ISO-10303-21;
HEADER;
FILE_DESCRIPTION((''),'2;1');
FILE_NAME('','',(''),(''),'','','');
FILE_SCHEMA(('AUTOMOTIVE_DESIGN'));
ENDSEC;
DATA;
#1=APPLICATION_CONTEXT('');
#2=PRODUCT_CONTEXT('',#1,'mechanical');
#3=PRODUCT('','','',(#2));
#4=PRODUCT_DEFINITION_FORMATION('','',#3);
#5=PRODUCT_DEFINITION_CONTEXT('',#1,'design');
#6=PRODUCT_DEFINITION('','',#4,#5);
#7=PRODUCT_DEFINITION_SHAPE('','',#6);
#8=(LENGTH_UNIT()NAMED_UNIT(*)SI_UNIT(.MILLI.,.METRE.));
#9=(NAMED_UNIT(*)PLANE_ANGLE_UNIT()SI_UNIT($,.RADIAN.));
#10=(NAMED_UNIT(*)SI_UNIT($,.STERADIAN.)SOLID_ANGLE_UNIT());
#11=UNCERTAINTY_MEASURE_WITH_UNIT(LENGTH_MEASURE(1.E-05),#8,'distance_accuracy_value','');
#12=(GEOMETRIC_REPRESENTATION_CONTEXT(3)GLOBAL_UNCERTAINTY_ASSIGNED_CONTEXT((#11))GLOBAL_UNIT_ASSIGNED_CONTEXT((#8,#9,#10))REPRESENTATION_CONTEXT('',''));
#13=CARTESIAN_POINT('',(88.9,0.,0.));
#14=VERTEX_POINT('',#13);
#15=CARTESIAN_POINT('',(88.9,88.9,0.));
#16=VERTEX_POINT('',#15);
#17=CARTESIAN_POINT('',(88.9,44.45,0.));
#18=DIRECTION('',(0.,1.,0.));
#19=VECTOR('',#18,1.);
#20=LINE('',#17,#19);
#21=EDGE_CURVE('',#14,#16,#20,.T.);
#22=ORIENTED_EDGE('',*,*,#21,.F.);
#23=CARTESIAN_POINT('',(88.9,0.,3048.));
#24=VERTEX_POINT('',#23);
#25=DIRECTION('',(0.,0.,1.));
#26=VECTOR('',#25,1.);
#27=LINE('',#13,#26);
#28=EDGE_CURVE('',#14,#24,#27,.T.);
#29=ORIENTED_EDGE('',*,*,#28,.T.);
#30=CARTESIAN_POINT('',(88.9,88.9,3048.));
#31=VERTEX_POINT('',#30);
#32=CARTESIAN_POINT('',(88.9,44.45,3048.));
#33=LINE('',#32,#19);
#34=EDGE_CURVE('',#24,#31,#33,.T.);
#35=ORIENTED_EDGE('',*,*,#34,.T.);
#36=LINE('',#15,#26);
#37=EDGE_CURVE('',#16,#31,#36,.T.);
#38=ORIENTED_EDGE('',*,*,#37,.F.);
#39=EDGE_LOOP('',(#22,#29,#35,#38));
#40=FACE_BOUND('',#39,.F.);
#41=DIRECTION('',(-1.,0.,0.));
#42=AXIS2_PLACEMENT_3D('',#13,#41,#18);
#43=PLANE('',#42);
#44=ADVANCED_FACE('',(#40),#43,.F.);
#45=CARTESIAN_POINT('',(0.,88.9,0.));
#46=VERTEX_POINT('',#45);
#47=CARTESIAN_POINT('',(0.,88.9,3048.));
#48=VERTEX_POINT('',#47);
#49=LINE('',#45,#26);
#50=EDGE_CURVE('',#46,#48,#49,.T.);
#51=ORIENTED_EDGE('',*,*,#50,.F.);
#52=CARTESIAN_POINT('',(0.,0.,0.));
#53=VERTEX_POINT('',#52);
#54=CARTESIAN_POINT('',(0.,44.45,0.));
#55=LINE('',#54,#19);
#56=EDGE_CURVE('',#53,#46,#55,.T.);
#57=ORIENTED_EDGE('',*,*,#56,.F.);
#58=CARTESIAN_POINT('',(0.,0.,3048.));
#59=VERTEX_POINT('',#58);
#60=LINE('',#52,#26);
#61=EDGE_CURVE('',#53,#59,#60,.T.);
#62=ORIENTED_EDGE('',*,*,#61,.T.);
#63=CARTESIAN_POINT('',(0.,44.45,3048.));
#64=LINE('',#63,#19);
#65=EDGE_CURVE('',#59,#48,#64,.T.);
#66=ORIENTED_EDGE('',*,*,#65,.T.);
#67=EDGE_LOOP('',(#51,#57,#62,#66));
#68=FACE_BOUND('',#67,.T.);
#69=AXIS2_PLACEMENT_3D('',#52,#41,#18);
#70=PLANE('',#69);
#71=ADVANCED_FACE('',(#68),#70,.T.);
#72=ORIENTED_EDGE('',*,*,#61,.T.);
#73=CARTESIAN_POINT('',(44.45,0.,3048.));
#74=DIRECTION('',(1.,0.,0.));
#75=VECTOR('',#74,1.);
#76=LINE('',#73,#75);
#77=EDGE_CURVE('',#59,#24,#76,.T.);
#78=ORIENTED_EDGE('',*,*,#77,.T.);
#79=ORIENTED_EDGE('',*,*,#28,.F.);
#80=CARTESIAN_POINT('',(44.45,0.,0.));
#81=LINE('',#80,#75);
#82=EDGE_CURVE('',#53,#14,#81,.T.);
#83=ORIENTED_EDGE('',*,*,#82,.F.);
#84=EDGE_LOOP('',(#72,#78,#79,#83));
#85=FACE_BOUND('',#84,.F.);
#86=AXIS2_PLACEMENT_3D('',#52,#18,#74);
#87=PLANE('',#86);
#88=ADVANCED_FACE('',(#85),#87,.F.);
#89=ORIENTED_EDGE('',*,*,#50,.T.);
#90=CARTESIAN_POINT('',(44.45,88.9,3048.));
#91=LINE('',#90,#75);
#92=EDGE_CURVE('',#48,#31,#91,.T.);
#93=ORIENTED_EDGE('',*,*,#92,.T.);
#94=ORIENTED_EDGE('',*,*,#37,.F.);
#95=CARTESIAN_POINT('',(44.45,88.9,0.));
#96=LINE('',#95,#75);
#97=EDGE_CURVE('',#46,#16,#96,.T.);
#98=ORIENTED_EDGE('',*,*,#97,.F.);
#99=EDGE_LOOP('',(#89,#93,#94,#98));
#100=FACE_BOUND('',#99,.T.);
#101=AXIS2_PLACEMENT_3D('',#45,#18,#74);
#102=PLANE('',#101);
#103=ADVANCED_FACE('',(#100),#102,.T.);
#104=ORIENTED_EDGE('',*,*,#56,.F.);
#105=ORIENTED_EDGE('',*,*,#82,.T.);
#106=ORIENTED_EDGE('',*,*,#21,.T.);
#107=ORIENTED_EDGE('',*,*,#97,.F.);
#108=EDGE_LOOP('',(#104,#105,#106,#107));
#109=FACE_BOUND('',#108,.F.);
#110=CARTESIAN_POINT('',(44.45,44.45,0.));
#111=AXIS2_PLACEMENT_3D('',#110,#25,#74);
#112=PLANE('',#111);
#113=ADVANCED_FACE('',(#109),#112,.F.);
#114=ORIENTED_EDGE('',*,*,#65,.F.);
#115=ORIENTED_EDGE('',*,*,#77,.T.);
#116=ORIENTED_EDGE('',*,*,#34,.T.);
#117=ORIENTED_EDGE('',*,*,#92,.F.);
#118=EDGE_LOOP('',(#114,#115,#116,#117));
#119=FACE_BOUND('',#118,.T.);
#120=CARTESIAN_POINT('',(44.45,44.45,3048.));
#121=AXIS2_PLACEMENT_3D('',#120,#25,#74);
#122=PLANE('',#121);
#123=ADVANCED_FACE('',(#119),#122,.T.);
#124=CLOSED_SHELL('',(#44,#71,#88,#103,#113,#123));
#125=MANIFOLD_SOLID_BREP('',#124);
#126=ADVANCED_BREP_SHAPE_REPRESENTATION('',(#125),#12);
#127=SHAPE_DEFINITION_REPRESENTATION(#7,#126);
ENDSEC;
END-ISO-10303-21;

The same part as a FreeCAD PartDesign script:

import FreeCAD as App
import Part
import Sketcher
from FreeCAD import Vector
Q = App.Units.Quantity


def add_polygon(sketch, points):
    """Adds a closed chain of lines whose ends are joined by coincident constraints."""
    first, n = sketch.GeometryCount, len(points)
    for a, b in zip(points, points[1:] + points[:1]):
        sketch.addGeometry(Part.LineSegment(App.Vector(*a, 0), App.Vector(*b, 0)), False)
    for i in range(n):
        sketch.addConstraint(Sketcher.Constraint("Coincident", first + i, 2, first + (i + 1) % n, 1))

doc = App.newDocument("Part")
params = doc.addObject("Spreadsheet::Sheet", "Params")
for row, (alias, value) in enumerate([
    ("sketch1_width", "3.5 in"),
    ("pad1_length", "120 in"),
    ("sketch2_width", "1.5 in"),
    ("sketch2_height", "7.25 in"),
    ("pad2_length", "93 in"),
    ("sketch3_width", "1.5 in"),
    ("sketch3_height", "7.25 in"),
    ("pad3_length", "47.25 in"),
    ("sketch4_width", "1.5 in"),
    ("sketch4_height", "3.5 in"),
    ("pad4_length", "44.25 in"),
    ("sketch5_width", "1.5 in"),
    ("sketch5_height", "3.5 in"),
    ("pad5_length", "52 in"),
], start=1):
    params.set(f"A{row}", alias)
    params.set(f"B{row}", "=" + value)
    params.setAlias(f"B{row}", alias)

body = doc.addObject("PartDesign::Body", "Body")

# Sketch on XY plane
sketch1 = doc.addObject("Sketcher::SketchObject", "Sketch")
body.addObject(sketch1)
sketch1.AttachmentSupport = (doc.XY_Plane, [""])
sketch1.MapMode = "FlatFace"
add_polygon(sketch1, [(0, 89), (0, 0), (89, 0), (89, 89)])  # lines 0-3
sketch1.addConstraint(Sketcher.Constraint("Vertical", 0))
sketch1.addConstraint(Sketcher.Constraint("Horizontal", 1))
sketch1.addConstraint(Sketcher.Constraint("Vertical", 2))
sketch1.addConstraint(Sketcher.Constraint("Horizontal", 3))
sketch1.addConstraint(Sketcher.Constraint("Coincident", 0, 2, -1, 1))
sketch1.addConstraint(Sketcher.Constraint("Equal", 3, 0))
sketch1.addConstraint(Sketcher.Constraint("DistanceX", 1, 1, 1, 2, Q("3.5 in")))
sketch1.setExpression("Constraints[10]", "Params.sketch1_width")
pad1 = doc.addObject("PartDesign::Pad", "Pad")
body.addObject(pad1)
pad1.Profile = sketch1
pad1.setExpression("Length", "Params.pad1_length")
body2 = doc.addObject("PartDesign::Body", "Body001")

# Sketch on XZ plane
sketch2 = doc.addObject("Sketcher::SketchObject", "Sketch001")
body2.addObject(sketch2)
sketch2.AttachmentSupport = (doc.getObject("XZ_Plane001"), [""])
sketch2.MapMode = "FlatFace"
add_polygon(sketch2, [(-166, 184), (-166, 0), (-128, 0), (-128, 184)])  # lines 0-3
sketch2.addConstraint(Sketcher.Constraint("Vertical", 0))
sketch2.addConstraint(Sketcher.Constraint("Horizontal", 1))
sketch2.addConstraint(Sketcher.Constraint("Vertical", 2))
sketch2.addConstraint(Sketcher.Constraint("Horizontal", 3))
sketch2.addConstraint(Sketcher.Constraint("PointOnObject", 0, 2, -1))
sketch2.addConstraint(Sketcher.Constraint("DistanceX", 1, 1, 1, 2, Q("1.5 in")))
sketch2.addConstraint(Sketcher.Constraint("DistanceY", 0, 2, 0, 1, Q("7.25 in")))
sketch2.addConstraint(Sketcher.Constraint("DistanceX", 0, 2, -1, 1, 165.644351))
sketch2.setExpression("Constraints[9]", "Params.sketch2_width")
sketch2.setExpression("Constraints[10]", "Params.sketch2_height")
pad2 = doc.addObject("PartDesign::Pad", "Pad001")
body2.addObject(pad2)
pad2.Profile = sketch2
pad2.setExpression("Length", "Params.pad2_length")
body3 = doc.addObject("PartDesign::Body", "Body002")

# Sketch on YZ plane
sketch3 = doc.addObject("Sketcher::SketchObject", "Sketch002")
body3.addObject(sketch3)
sketch3.AttachmentSupport = (doc.getObject("YZ_Plane002"), [""])
sketch3.MapMode = "FlatFace"
add_polygon(sketch3, [(230, 184), (230, 0), (268, 0), (268, 184)])  # lines 0-3
sketch3.addConstraint(Sketcher.Constraint("Vertical", 0))
sketch3.addConstraint(Sketcher.Constraint("Horizontal", 1))
sketch3.addConstraint(Sketcher.Constraint("Vertical", 2))
sketch3.addConstraint(Sketcher.Constraint("Horizontal", 3))
sketch3.addConstraint(Sketcher.Constraint("PointOnObject", 0, 2, -1))
sketch3.addConstraint(Sketcher.Constraint("DistanceX", 1, 1, 1, 2, Q("1.5 in")))
sketch3.addConstraint(Sketcher.Constraint("DistanceY", 0, 2, 0, 1, Q("7.25 in")))
sketch3.addConstraint(Sketcher.Constraint("DistanceX", -1, 1, 0, 2, 230.036387))
sketch3.setExpression("Constraints[9]", "Params.sketch3_width")
sketch3.setExpression("Constraints[10]", "Params.sketch3_height")
pad3 = doc.addObject("PartDesign::Pad", "Pad002")
body3.addObject(pad3)
pad3.Profile = sketch3
pad3.setExpression("Length", "Params.pad3_length")
body4 = doc.addObject("PartDesign::Body", "Body003")

# Sketch on XZ plane
sketch4 = doc.addObject("Sketcher::SketchObject", "Sketch003")
body4.addObject(sketch4)
sketch4.AttachmentSupport = (doc.getObject("XZ_Plane003"), [""])
sketch4.MapMode = "FlatFace"
add_polygon(sketch4, [(-354, 89), (-354, 0), (-316, 0), (-316, 89)])  # lines 0-3
sketch4.addConstraint(Sketcher.Constraint("Vertical", 0))
sketch4.addConstraint(Sketcher.Constraint("Horizontal", 1))
sketch4.addConstraint(Sketcher.Constraint("Vertical", 2))
sketch4.addConstraint(Sketcher.Constraint("Horizontal", 3))
sketch4.addConstraint(Sketcher.Constraint("PointOnObject", 0, 2, -1))
sketch4.addConstraint(Sketcher.Constraint("DistanceX", 1, 1, 1, 2, Q("1.5 in")))
sketch4.addConstraint(Sketcher.Constraint("DistanceY", 0, 2, 0, 1, Q("3.5 in")))
sketch4.addConstraint(Sketcher.Constraint("DistanceX", 0, 2, -1, 1, 353.774839))
sketch4.setExpression("Constraints[9]", "Params.sketch4_width")
sketch4.setExpression("Constraints[10]", "Params.sketch4_height")
pad4 = doc.addObject("PartDesign::Pad", "Pad003")
body4.addObject(pad4)
pad4.Profile = sketch4
pad4.setExpression("Length", "Params.pad4_length")
body5 = doc.addObject("PartDesign::Body", "Body004")

# Sketch on XY plane
sketch5 = doc.addObject("Sketcher::SketchObject", "Sketch004")
body5.addObject(sketch5)
sketch5.AttachmentSupport = (doc.getObject("XY_Plane004"), [""])
sketch5.MapMode = "FlatFace"
add_polygon(sketch5, [(35, -118), (35, -207), (73, -207), (73, -118)])  # lines 0-3
sketch5.addConstraint(Sketcher.Constraint("Vertical", 0))
sketch5.addConstraint(Sketcher.Constraint("Horizontal", 1))
sketch5.addConstraint(Sketcher.Constraint("Vertical", 2))
sketch5.addConstraint(Sketcher.Constraint("Horizontal", 3))
sketch5.addConstraint(Sketcher.Constraint("DistanceX", 1, 1, 1, 2, Q("1.5 in")))
sketch5.addConstraint(Sketcher.Constraint("DistanceY", 0, 2, 0, 1, Q("3.5 in")))
sketch5.addConstraint(Sketcher.Constraint("DistanceX", -1, 1, 0, 2, 35.354456))
sketch5.addConstraint(Sketcher.Constraint("DistanceY", 0, 2, -1, 1, 206.978336))
sketch5.setExpression("Constraints[8]", "Params.sketch5_width")
sketch5.setExpression("Constraints[9]", "Params.sketch5_height")
pad5 = doc.addObject("PartDesign::Pad", "Pad004")
body5.addObject(pad5)
pad5.Profile = sketch5
pad5.setExpression("Length", "Params.pad5_length")
body2.Visibility = False
body3.Visibility = False
body4.Visibility = False
body5.Visibility = False

doc.recompute()
